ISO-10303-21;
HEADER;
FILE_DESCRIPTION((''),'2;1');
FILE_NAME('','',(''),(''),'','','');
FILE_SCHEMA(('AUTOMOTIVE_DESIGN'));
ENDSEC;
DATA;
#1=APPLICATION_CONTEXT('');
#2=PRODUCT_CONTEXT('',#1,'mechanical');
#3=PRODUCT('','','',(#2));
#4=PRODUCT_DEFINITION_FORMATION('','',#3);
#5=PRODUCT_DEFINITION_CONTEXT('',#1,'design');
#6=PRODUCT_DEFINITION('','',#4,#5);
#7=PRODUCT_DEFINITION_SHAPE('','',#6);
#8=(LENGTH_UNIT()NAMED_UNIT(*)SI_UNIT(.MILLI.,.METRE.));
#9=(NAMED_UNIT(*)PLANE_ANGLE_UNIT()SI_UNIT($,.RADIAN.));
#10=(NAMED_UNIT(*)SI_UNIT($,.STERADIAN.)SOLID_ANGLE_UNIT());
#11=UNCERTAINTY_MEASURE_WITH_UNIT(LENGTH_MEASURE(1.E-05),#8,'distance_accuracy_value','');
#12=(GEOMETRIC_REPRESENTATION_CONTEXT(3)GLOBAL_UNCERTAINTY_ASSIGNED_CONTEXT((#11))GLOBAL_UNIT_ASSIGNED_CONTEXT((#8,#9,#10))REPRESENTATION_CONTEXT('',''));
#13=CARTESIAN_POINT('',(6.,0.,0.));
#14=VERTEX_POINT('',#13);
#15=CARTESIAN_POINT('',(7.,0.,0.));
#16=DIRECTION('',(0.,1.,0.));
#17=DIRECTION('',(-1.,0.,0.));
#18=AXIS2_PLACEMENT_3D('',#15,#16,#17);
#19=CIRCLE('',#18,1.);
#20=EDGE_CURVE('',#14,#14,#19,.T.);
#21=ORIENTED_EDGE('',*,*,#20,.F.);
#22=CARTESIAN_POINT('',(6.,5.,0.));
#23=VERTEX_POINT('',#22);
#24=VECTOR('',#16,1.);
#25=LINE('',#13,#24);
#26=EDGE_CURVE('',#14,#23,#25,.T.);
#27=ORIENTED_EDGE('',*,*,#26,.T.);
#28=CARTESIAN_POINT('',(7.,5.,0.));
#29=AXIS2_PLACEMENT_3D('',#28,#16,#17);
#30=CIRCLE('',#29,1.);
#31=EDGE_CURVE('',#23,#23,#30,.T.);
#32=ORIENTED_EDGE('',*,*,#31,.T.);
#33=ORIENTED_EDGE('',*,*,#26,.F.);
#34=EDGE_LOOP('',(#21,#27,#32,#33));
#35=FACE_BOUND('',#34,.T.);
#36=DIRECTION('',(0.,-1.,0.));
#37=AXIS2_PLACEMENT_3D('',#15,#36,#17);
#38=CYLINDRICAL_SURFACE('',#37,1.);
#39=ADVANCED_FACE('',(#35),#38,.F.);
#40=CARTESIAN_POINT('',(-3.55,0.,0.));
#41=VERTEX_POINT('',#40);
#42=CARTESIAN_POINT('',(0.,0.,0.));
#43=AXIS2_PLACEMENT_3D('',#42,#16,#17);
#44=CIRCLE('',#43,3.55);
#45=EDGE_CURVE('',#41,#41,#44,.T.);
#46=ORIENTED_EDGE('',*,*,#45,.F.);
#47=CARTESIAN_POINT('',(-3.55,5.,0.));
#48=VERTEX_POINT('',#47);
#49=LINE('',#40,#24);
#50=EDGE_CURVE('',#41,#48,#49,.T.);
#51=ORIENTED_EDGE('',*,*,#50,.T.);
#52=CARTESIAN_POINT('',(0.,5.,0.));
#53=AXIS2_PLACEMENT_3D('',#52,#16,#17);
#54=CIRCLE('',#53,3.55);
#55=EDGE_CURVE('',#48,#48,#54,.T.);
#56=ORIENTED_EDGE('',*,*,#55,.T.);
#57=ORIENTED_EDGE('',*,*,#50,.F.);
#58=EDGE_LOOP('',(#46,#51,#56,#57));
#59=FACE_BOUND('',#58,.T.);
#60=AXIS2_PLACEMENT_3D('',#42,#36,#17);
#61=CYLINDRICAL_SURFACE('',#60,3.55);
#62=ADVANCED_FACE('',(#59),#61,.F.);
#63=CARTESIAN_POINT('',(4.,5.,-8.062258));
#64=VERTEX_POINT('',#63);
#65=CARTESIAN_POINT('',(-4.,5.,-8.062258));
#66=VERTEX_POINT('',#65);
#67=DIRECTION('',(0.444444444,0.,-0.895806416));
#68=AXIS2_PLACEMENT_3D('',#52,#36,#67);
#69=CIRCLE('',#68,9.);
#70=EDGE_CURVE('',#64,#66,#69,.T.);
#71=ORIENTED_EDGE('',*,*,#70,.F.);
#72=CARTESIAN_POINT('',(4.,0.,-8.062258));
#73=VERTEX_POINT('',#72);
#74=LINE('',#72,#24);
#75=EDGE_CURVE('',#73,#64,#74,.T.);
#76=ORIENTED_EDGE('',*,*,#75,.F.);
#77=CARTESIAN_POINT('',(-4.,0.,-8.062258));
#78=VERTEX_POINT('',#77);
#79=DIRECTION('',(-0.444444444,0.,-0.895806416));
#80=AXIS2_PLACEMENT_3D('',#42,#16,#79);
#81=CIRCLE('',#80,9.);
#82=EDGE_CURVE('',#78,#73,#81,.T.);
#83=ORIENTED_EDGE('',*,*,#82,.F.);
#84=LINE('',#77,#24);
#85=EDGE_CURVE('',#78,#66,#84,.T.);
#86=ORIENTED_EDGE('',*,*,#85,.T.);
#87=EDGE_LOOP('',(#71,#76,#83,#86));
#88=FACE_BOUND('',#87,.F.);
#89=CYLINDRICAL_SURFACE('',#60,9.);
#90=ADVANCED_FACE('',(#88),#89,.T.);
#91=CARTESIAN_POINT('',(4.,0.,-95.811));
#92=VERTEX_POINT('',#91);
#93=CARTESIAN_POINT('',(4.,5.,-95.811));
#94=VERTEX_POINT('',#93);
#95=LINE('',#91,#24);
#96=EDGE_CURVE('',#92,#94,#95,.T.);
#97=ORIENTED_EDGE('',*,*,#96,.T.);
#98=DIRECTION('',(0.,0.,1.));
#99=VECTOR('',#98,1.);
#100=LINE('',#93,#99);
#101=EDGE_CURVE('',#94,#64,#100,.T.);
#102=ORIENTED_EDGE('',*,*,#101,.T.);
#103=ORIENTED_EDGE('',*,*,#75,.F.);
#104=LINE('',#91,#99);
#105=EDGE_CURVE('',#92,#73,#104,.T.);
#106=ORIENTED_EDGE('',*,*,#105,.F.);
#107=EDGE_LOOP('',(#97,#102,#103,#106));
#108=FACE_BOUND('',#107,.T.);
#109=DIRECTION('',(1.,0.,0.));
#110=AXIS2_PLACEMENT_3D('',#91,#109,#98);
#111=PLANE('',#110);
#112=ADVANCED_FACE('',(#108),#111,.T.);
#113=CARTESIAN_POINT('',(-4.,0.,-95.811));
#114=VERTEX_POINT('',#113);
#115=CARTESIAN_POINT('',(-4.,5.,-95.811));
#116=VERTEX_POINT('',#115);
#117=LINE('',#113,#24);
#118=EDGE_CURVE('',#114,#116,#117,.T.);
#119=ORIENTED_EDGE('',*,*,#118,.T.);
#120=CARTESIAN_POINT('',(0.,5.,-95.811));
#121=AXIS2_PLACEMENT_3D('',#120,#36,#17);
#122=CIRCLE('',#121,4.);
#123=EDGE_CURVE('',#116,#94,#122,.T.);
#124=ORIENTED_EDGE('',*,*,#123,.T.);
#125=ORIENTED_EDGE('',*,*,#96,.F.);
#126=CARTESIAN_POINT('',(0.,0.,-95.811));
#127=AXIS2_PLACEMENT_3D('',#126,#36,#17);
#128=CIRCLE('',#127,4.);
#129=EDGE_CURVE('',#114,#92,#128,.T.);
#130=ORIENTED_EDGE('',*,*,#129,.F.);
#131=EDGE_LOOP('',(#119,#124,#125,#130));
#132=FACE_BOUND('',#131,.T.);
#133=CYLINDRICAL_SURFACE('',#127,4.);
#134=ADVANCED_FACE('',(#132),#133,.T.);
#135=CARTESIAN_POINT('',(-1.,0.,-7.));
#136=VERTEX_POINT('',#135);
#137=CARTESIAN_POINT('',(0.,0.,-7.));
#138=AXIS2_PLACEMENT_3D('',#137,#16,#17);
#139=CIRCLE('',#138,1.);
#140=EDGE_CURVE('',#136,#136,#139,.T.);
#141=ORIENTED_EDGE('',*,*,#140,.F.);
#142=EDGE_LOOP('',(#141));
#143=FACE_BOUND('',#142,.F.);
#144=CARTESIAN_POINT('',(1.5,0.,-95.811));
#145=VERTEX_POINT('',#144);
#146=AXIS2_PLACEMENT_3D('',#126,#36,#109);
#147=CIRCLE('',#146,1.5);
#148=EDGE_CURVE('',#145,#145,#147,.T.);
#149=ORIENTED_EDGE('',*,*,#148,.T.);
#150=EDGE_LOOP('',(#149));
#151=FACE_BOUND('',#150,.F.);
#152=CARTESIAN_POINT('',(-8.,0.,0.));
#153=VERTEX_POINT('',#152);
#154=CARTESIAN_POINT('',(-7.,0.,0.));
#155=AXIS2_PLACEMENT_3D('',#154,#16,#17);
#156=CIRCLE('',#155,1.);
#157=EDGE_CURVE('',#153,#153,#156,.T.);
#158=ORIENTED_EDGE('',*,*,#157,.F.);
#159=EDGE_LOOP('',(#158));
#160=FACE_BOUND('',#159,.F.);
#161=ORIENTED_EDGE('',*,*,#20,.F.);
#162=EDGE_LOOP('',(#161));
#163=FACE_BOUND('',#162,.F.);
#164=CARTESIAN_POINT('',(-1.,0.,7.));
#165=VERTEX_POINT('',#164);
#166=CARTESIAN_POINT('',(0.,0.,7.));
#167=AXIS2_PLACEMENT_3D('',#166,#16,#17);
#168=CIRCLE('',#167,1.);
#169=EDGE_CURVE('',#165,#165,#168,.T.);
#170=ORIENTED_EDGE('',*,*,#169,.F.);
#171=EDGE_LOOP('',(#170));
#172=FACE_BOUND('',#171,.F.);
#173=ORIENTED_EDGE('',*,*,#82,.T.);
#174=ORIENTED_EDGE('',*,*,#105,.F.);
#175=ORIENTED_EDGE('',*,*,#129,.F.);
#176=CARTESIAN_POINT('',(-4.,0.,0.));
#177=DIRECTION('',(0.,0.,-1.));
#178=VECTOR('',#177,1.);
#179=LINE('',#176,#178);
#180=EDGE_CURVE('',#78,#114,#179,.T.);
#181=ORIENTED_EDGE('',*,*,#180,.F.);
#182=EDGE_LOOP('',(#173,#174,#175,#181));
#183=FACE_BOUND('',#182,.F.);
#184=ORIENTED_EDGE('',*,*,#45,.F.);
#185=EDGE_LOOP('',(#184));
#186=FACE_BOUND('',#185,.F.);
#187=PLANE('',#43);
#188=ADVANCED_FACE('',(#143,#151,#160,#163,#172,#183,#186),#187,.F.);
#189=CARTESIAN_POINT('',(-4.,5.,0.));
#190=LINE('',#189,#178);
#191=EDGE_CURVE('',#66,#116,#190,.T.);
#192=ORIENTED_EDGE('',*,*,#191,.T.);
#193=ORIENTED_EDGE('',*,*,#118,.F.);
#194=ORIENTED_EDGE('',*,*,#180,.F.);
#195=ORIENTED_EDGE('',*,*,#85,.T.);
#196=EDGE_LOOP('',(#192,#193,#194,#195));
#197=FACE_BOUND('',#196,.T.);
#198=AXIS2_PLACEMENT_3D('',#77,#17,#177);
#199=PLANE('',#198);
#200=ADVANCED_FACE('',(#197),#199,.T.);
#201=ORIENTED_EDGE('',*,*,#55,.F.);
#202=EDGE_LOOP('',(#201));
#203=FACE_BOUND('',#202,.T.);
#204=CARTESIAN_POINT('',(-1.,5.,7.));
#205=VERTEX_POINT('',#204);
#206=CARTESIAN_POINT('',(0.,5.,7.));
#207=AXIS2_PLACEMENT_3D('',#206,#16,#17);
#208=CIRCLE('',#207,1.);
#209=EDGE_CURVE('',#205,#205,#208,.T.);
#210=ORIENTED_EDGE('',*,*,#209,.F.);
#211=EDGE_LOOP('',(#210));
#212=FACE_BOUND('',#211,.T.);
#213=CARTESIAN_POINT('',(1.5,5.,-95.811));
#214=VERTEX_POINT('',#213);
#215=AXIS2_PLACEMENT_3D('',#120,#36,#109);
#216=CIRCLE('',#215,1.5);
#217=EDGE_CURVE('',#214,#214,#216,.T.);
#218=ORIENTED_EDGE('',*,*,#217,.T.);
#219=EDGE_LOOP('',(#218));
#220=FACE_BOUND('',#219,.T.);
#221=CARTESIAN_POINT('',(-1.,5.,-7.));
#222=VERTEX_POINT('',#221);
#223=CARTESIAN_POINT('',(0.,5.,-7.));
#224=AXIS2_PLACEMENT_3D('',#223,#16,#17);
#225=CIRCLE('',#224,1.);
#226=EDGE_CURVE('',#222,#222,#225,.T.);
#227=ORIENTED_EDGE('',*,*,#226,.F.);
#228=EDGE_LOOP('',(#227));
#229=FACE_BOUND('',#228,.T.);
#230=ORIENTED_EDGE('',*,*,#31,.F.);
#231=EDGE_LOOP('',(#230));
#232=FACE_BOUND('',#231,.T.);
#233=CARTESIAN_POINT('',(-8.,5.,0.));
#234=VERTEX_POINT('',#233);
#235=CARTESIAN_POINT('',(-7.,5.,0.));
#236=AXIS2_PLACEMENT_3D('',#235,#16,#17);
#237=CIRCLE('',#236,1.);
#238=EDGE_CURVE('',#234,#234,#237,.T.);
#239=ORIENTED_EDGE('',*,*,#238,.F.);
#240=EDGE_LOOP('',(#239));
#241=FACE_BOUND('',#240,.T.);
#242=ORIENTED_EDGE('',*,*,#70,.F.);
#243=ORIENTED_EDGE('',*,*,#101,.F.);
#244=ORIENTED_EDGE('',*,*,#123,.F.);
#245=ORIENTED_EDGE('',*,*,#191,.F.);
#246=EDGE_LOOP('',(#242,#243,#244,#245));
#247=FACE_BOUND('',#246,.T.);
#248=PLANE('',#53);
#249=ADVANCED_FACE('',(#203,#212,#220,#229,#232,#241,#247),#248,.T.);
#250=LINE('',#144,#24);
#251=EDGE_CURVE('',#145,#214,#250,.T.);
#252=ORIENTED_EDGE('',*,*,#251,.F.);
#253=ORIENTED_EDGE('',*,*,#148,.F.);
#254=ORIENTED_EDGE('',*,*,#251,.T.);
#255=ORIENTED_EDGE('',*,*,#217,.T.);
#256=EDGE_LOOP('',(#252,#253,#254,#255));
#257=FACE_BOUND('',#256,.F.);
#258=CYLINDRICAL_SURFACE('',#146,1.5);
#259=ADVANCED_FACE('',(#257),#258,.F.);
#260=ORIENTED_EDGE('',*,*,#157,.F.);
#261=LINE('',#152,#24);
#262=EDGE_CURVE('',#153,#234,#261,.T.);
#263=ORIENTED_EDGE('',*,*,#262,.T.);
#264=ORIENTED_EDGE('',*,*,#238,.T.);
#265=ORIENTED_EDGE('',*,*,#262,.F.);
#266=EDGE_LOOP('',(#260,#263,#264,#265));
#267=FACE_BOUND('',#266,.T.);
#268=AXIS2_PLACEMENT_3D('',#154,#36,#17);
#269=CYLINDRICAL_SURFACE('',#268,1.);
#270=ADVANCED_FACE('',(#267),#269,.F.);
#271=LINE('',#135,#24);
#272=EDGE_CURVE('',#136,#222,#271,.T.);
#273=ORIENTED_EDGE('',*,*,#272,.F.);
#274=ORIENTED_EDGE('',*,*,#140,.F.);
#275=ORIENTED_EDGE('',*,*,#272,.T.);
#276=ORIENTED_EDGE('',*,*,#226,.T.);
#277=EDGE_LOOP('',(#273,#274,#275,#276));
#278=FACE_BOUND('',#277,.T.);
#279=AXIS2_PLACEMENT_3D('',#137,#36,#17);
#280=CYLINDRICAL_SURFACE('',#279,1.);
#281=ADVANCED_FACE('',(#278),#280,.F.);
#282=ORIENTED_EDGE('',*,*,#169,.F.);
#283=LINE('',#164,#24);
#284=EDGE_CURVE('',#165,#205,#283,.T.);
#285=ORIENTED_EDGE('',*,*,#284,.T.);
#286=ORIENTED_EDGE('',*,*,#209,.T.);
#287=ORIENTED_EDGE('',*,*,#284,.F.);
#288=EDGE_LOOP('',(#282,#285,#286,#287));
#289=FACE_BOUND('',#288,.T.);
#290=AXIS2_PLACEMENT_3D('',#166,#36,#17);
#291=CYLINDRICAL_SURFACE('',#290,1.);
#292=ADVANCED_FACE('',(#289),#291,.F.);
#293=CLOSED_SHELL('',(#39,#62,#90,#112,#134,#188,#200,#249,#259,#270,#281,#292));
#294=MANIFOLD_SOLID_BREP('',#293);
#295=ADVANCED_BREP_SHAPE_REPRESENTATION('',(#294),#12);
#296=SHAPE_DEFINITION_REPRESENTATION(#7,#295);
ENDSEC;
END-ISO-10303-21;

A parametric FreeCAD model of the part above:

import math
import FreeCAD as App
import Part
import Sketcher

V = App.Vector

doc = App.newDocument("Part")
body = doc.addObject("PartDesign::Body", "Body")

# Sketch on XZ plane
sketch1 = body.newObject("Sketcher::SketchObject", "Sketch")
sketch1.AttachmentSupport = (doc.getObject("XZ_Plane"), [""])
sketch1.MapMode = "FlatFace"
sketch1.addGeometry([
    Part.Circle(V(0, 0, 0), V(0, 0, 1), 9),  # 0
    Part.Circle(V(0, -7, 0), V(0, 0, 1), 1),  # 1
    Part.Circle(V(7, 0, 0), V(0, 0, 1), 1),  # 2
    Part.Circle(V(0, 0, 0), V(0, 0, 1), 3.55),  # 3
    Part.Circle(V(-7, 0, 0), V(0, 0, 1), 1),  # 4
    Part.Circle(V(0, 7, 0), V(0, 0, 1), 1),  # 5
], False)
sketch1.addConstraint([
    Sketcher.Constraint("Coincident", 0, 3, -1, 1),
    Sketcher.Constraint("Coincident", 3, 3, -1, 1),
    Sketcher.Constraint("Equal", 1, 2),
    Sketcher.Constraint("Equal", 2, 4),
    Sketcher.Constraint("Equal", 4, 5),
    Sketcher.Constraint("Symmetric", 2, 3, 4, 3, -1, 1),
    Sketcher.Constraint("Symmetric", 1, 3, 5, 3, -1, 1),
    Sketcher.Constraint("PointOnObject", 1, 3, -2),
    Sketcher.Constraint("PointOnObject", 2, 3, -1),
    Sketcher.Constraint("Diameter", 0, 18.0),
    Sketcher.Constraint("Diameter", 1, 2.0),
    Sketcher.Constraint("Diameter", 3, 7.1),
    Sketcher.Constraint("DistanceY", 1, 3, -1, 1, 7.0),
    Sketcher.Constraint("DistanceX", -1, 1, 2, 3, 7.0),
])
pad1 = body.newObject("PartDesign::Pad", "Pad")
pad1.Profile = sketch1
pad1.Length = 5
pad1.Reversed = True

# Sketch on XZ plane
sketch2 = body.newObject("Sketcher::SketchObject", "Sketch001")
sketch2.AttachmentSupport = (doc.getObject("XZ_Plane"), [""])
sketch2.MapMode = "FlatFace"
sketch2.addGeometry([
    Part.ArcOfCircle(Part.Circle(V(0, 0, 0), V(0, 0, 1), 9), math.radians(-116.3878), math.radians(-63.6122)),  # 0
    Part.LineSegment(V(-4, -8.062258, 0), V(-4, -95.811, 0)),  # 1
    Part.ArcOfCircle(Part.Circle(V(0, -95.811, 0), V(0, 0, 1), 4), math.radians(180), math.radians(360)),  # 2
    Part.LineSegment(V(4, -95.811, 0), V(4, -8.062258, 0)),  # 3
    Part.Circle(V(0, -95.811, 0), V(0, 0, 1), 1.5),  # 4
], False)
sketch2.addConstraint([
    Sketcher.Constraint("Coincident", 0, 1, 1, 1),
    Sketcher.Constraint("Tangent", 1, 2, 2, 1),
    Sketcher.Constraint("Tangent", 2, 2, 3, 1),
    Sketcher.Constraint("Coincident", 3, 2, 0, 2),
    Sketcher.Constraint("Vertical", 1),
    Sketcher.Constraint("Vertical", 3),
    Sketcher.Constraint("Coincident", 0, 3, -1, 1),
    Sketcher.Constraint("Coincident", 4, 3, 2, 3),
    Sketcher.Constraint("PointOnObject", 2, 3, -2),
    Sketcher.Constraint("Diameter", 4, 3.0),
    Sketcher.Constraint("Radius", 2, 4.0),
    Sketcher.Constraint("Radius", 0, 9.0),
    Sketcher.Constraint("DistanceY", 2, 3, -1, 1, 95.811),
])
pad2 = body.newObject("PartDesign::Pad", "Pad001")
pad2.Profile = sketch2
pad2.Length = 5
pad2.Reversed = True

doc.recompute()
